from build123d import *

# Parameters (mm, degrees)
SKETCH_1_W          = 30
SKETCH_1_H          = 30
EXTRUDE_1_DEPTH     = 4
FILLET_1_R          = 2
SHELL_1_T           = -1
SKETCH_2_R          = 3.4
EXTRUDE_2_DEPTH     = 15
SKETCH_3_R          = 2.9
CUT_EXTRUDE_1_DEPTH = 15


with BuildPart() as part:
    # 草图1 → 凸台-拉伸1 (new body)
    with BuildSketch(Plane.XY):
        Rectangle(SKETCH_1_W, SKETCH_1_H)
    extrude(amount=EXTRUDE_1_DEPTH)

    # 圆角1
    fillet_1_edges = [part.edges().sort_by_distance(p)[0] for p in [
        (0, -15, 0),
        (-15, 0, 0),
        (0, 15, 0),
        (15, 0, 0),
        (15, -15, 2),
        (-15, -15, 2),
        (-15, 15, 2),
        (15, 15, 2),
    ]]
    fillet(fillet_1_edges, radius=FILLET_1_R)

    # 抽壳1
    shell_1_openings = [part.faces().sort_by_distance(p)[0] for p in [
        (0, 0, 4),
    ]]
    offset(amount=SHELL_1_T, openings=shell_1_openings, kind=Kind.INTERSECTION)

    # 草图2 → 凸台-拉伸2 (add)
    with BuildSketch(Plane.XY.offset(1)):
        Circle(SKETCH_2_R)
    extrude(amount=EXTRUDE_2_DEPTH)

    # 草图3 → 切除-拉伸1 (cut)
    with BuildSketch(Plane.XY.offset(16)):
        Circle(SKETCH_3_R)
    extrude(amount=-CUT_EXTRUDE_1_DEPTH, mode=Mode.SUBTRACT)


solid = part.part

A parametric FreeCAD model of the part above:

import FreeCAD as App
import Part
import Sketcher

V = App.Vector
Q = App.Units.Quantity


def edges_at(feature, points):
    """Names of the edges that pass closest to the given points."""
    edges = feature.Shape.Edges
    near = lambda p: min(range(len(edges)), key=lambda i: edges[i].distToShape(Part.Vertex(*p))[0])
    return sorted({f"Edge{near(p) + 1}" for p in points})


def faces_at(feature, points):
    """Names of the faces that lie closest to the given points."""
    faces = feature.Shape.Faces
    near = lambda p: min(range(len(faces)), key=lambda i: faces[i].distToShape(Part.Vertex(*p))[0])
    return sorted({f"Face{near(p) + 1}" for p in points})


def add_polygon(sketch, points):
    """Adds a closed chain of lines whose ends are joined by coincident constraints."""
    first, n = sketch.GeometryCount, len(points)
    for a, b in zip(points, points[1:] + points[:1]):
        sketch.addGeometry(Part.LineSegment(App.Vector(*a, 0), App.Vector(*b, 0)), False)
    for i in range(n):
        sketch.addConstraint(Sketcher.Constraint("Coincident", first + i, 2, first + (i + 1) % n, 1))

doc = App.newDocument("Part")
params = doc.addObject("Spreadsheet::Sheet", "Params")
for row, (alias, value) in enumerate([
    ("sketch1_width", "30 mm"),
    ("pad1_length", "4 mm"),
    ("fillet_radius", "2 mm"),
    ("thickness_wall", "1 mm"),
    ("sketch2_diameter", "6.8 mm"),
    ("pad2_length", "15 mm"),
    ("sketch3_diameter", "5.8 mm"),
    ("pocket1_length", "15 mm"),
], start=1):
    params.set(f"A{row}", alias)
    params.set(f"B{row}", "=" + value)
    params.setAlias(f"B{row}", alias)

body = doc.addObject("PartDesign::Body", "Body")

# Sketch on XY plane
sketch1 = body.newObject("Sketcher::SketchObject", "Sketch")
sketch1.AttachmentSupport = (doc.getObject("XY_Plane"), [""])
sketch1.MapMode = "FlatFace"
add_polygon(sketch1, [(-15, 15), (-15, -15), (15, -15), (15, 15)])  # lines 0-3
sketch1.addConstraint(Sketcher.Constraint("Vertical", 0))
sketch1.addConstraint(Sketcher.Constraint("Horizontal", 1))
sketch1.addConstraint(Sketcher.Constraint("Vertical", 2))
sketch1.addConstraint(Sketcher.Constraint("Horizontal", 3))
sketch1.addConstraint(Sketcher.Constraint("Symmetric", 0, 2, 2, 2, -1, 1))
sketch1.addConstraint(Sketcher.Constraint("Equal", 3, 0))
sketch1.addConstraint(Sketcher.Constraint("DistanceX", 1, 1, 1, 2, Q("30 mm")))
sketch1.setExpression("Constraints[10]", "Params.sketch1_width")
pad1 = body.newObject("PartDesign::Pad", "Pad")
pad1.Profile = sketch1
pad1.setExpression("Length", "Params.pad1_length")
doc.recompute()

fillet = body.newObject("PartDesign::Fillet", "Fillet")
fillet.Base = (pad1, edges_at(pad1, [
    (0, -15, 0),
    (-15, 0, 0),
    (0, 15, 0),
    (15, 0, 0),
    (15, -15, 2),
    (-15, -15, 2),
    (-15, 15, 2),
    (15, 15, 2),
]))
fillet.setExpression("Radius", "Params.fillet_radius")
doc.recompute()

thickness = body.newObject("PartDesign::Thickness", "Thickness")
thickness.Base = (fillet, faces_at(fillet, [(0, 0, 4)]))
thickness.setExpression("Value", "Params.thickness_wall")
thickness.Reversed = True
thickness.Join = "Intersection"

# Sketch on XY plane
sketch2 = body.newObject("Sketcher::SketchObject", "Sketch001")
sketch2.AttachmentSupport = (doc.getObject("XY_Plane"), [""])
sketch2.MapMode = "FlatFace"
sketch2.AttachmentOffset = App.Placement(V(0, 0, 1), App.Rotation())
sketch2.addGeometry(Part.Circle(V(0, 0, 0), V(0, 0, 1), 3.4), False)
sketch2.addConstraint(Sketcher.Constraint("Coincident", 0, 3, -1, 1))
sketch2.addConstraint(Sketcher.Constraint("Diameter", 0, Q("6.8 mm")))
sketch2.setExpression("Constraints[1]", "Params.sketch2_diameter")
pad2 = body.newObject("PartDesign::Pad", "Pad001")
pad2.Profile = sketch2
pad2.setExpression("Length", "Params.pad2_length")

# Sketch on XY plane
sketch3 = body.newObject("Sketcher::SketchObject", "Sketch002")
sketch3.AttachmentSupport = (doc.getObject("XY_Plane"), [""])
sketch3.MapMode = "FlatFace"
sketch3.AttachmentOffset = App.Placement(V(0, 0, 16), App.Rotation())
sketch3.addGeometry(Part.Circle(V(0, 0, 0), V(0, 0, 1), 2.9), False)
sketch3.addConstraint(Sketcher.Constraint("Coincident", 0, 3, -1, 1))
sketch3.addConstraint(Sketcher.Constraint("Diameter", 0, Q("5.8 mm")))
sketch3.setExpression("Constraints[1]", "Params.sketch3_diameter")
pocket1 = body.newObject("PartDesign::Pocket", "Pocket")
pocket1.Profile = sketch3
pocket1.setExpression("Length", "Params.pocket1_length")

doc.recompute()
